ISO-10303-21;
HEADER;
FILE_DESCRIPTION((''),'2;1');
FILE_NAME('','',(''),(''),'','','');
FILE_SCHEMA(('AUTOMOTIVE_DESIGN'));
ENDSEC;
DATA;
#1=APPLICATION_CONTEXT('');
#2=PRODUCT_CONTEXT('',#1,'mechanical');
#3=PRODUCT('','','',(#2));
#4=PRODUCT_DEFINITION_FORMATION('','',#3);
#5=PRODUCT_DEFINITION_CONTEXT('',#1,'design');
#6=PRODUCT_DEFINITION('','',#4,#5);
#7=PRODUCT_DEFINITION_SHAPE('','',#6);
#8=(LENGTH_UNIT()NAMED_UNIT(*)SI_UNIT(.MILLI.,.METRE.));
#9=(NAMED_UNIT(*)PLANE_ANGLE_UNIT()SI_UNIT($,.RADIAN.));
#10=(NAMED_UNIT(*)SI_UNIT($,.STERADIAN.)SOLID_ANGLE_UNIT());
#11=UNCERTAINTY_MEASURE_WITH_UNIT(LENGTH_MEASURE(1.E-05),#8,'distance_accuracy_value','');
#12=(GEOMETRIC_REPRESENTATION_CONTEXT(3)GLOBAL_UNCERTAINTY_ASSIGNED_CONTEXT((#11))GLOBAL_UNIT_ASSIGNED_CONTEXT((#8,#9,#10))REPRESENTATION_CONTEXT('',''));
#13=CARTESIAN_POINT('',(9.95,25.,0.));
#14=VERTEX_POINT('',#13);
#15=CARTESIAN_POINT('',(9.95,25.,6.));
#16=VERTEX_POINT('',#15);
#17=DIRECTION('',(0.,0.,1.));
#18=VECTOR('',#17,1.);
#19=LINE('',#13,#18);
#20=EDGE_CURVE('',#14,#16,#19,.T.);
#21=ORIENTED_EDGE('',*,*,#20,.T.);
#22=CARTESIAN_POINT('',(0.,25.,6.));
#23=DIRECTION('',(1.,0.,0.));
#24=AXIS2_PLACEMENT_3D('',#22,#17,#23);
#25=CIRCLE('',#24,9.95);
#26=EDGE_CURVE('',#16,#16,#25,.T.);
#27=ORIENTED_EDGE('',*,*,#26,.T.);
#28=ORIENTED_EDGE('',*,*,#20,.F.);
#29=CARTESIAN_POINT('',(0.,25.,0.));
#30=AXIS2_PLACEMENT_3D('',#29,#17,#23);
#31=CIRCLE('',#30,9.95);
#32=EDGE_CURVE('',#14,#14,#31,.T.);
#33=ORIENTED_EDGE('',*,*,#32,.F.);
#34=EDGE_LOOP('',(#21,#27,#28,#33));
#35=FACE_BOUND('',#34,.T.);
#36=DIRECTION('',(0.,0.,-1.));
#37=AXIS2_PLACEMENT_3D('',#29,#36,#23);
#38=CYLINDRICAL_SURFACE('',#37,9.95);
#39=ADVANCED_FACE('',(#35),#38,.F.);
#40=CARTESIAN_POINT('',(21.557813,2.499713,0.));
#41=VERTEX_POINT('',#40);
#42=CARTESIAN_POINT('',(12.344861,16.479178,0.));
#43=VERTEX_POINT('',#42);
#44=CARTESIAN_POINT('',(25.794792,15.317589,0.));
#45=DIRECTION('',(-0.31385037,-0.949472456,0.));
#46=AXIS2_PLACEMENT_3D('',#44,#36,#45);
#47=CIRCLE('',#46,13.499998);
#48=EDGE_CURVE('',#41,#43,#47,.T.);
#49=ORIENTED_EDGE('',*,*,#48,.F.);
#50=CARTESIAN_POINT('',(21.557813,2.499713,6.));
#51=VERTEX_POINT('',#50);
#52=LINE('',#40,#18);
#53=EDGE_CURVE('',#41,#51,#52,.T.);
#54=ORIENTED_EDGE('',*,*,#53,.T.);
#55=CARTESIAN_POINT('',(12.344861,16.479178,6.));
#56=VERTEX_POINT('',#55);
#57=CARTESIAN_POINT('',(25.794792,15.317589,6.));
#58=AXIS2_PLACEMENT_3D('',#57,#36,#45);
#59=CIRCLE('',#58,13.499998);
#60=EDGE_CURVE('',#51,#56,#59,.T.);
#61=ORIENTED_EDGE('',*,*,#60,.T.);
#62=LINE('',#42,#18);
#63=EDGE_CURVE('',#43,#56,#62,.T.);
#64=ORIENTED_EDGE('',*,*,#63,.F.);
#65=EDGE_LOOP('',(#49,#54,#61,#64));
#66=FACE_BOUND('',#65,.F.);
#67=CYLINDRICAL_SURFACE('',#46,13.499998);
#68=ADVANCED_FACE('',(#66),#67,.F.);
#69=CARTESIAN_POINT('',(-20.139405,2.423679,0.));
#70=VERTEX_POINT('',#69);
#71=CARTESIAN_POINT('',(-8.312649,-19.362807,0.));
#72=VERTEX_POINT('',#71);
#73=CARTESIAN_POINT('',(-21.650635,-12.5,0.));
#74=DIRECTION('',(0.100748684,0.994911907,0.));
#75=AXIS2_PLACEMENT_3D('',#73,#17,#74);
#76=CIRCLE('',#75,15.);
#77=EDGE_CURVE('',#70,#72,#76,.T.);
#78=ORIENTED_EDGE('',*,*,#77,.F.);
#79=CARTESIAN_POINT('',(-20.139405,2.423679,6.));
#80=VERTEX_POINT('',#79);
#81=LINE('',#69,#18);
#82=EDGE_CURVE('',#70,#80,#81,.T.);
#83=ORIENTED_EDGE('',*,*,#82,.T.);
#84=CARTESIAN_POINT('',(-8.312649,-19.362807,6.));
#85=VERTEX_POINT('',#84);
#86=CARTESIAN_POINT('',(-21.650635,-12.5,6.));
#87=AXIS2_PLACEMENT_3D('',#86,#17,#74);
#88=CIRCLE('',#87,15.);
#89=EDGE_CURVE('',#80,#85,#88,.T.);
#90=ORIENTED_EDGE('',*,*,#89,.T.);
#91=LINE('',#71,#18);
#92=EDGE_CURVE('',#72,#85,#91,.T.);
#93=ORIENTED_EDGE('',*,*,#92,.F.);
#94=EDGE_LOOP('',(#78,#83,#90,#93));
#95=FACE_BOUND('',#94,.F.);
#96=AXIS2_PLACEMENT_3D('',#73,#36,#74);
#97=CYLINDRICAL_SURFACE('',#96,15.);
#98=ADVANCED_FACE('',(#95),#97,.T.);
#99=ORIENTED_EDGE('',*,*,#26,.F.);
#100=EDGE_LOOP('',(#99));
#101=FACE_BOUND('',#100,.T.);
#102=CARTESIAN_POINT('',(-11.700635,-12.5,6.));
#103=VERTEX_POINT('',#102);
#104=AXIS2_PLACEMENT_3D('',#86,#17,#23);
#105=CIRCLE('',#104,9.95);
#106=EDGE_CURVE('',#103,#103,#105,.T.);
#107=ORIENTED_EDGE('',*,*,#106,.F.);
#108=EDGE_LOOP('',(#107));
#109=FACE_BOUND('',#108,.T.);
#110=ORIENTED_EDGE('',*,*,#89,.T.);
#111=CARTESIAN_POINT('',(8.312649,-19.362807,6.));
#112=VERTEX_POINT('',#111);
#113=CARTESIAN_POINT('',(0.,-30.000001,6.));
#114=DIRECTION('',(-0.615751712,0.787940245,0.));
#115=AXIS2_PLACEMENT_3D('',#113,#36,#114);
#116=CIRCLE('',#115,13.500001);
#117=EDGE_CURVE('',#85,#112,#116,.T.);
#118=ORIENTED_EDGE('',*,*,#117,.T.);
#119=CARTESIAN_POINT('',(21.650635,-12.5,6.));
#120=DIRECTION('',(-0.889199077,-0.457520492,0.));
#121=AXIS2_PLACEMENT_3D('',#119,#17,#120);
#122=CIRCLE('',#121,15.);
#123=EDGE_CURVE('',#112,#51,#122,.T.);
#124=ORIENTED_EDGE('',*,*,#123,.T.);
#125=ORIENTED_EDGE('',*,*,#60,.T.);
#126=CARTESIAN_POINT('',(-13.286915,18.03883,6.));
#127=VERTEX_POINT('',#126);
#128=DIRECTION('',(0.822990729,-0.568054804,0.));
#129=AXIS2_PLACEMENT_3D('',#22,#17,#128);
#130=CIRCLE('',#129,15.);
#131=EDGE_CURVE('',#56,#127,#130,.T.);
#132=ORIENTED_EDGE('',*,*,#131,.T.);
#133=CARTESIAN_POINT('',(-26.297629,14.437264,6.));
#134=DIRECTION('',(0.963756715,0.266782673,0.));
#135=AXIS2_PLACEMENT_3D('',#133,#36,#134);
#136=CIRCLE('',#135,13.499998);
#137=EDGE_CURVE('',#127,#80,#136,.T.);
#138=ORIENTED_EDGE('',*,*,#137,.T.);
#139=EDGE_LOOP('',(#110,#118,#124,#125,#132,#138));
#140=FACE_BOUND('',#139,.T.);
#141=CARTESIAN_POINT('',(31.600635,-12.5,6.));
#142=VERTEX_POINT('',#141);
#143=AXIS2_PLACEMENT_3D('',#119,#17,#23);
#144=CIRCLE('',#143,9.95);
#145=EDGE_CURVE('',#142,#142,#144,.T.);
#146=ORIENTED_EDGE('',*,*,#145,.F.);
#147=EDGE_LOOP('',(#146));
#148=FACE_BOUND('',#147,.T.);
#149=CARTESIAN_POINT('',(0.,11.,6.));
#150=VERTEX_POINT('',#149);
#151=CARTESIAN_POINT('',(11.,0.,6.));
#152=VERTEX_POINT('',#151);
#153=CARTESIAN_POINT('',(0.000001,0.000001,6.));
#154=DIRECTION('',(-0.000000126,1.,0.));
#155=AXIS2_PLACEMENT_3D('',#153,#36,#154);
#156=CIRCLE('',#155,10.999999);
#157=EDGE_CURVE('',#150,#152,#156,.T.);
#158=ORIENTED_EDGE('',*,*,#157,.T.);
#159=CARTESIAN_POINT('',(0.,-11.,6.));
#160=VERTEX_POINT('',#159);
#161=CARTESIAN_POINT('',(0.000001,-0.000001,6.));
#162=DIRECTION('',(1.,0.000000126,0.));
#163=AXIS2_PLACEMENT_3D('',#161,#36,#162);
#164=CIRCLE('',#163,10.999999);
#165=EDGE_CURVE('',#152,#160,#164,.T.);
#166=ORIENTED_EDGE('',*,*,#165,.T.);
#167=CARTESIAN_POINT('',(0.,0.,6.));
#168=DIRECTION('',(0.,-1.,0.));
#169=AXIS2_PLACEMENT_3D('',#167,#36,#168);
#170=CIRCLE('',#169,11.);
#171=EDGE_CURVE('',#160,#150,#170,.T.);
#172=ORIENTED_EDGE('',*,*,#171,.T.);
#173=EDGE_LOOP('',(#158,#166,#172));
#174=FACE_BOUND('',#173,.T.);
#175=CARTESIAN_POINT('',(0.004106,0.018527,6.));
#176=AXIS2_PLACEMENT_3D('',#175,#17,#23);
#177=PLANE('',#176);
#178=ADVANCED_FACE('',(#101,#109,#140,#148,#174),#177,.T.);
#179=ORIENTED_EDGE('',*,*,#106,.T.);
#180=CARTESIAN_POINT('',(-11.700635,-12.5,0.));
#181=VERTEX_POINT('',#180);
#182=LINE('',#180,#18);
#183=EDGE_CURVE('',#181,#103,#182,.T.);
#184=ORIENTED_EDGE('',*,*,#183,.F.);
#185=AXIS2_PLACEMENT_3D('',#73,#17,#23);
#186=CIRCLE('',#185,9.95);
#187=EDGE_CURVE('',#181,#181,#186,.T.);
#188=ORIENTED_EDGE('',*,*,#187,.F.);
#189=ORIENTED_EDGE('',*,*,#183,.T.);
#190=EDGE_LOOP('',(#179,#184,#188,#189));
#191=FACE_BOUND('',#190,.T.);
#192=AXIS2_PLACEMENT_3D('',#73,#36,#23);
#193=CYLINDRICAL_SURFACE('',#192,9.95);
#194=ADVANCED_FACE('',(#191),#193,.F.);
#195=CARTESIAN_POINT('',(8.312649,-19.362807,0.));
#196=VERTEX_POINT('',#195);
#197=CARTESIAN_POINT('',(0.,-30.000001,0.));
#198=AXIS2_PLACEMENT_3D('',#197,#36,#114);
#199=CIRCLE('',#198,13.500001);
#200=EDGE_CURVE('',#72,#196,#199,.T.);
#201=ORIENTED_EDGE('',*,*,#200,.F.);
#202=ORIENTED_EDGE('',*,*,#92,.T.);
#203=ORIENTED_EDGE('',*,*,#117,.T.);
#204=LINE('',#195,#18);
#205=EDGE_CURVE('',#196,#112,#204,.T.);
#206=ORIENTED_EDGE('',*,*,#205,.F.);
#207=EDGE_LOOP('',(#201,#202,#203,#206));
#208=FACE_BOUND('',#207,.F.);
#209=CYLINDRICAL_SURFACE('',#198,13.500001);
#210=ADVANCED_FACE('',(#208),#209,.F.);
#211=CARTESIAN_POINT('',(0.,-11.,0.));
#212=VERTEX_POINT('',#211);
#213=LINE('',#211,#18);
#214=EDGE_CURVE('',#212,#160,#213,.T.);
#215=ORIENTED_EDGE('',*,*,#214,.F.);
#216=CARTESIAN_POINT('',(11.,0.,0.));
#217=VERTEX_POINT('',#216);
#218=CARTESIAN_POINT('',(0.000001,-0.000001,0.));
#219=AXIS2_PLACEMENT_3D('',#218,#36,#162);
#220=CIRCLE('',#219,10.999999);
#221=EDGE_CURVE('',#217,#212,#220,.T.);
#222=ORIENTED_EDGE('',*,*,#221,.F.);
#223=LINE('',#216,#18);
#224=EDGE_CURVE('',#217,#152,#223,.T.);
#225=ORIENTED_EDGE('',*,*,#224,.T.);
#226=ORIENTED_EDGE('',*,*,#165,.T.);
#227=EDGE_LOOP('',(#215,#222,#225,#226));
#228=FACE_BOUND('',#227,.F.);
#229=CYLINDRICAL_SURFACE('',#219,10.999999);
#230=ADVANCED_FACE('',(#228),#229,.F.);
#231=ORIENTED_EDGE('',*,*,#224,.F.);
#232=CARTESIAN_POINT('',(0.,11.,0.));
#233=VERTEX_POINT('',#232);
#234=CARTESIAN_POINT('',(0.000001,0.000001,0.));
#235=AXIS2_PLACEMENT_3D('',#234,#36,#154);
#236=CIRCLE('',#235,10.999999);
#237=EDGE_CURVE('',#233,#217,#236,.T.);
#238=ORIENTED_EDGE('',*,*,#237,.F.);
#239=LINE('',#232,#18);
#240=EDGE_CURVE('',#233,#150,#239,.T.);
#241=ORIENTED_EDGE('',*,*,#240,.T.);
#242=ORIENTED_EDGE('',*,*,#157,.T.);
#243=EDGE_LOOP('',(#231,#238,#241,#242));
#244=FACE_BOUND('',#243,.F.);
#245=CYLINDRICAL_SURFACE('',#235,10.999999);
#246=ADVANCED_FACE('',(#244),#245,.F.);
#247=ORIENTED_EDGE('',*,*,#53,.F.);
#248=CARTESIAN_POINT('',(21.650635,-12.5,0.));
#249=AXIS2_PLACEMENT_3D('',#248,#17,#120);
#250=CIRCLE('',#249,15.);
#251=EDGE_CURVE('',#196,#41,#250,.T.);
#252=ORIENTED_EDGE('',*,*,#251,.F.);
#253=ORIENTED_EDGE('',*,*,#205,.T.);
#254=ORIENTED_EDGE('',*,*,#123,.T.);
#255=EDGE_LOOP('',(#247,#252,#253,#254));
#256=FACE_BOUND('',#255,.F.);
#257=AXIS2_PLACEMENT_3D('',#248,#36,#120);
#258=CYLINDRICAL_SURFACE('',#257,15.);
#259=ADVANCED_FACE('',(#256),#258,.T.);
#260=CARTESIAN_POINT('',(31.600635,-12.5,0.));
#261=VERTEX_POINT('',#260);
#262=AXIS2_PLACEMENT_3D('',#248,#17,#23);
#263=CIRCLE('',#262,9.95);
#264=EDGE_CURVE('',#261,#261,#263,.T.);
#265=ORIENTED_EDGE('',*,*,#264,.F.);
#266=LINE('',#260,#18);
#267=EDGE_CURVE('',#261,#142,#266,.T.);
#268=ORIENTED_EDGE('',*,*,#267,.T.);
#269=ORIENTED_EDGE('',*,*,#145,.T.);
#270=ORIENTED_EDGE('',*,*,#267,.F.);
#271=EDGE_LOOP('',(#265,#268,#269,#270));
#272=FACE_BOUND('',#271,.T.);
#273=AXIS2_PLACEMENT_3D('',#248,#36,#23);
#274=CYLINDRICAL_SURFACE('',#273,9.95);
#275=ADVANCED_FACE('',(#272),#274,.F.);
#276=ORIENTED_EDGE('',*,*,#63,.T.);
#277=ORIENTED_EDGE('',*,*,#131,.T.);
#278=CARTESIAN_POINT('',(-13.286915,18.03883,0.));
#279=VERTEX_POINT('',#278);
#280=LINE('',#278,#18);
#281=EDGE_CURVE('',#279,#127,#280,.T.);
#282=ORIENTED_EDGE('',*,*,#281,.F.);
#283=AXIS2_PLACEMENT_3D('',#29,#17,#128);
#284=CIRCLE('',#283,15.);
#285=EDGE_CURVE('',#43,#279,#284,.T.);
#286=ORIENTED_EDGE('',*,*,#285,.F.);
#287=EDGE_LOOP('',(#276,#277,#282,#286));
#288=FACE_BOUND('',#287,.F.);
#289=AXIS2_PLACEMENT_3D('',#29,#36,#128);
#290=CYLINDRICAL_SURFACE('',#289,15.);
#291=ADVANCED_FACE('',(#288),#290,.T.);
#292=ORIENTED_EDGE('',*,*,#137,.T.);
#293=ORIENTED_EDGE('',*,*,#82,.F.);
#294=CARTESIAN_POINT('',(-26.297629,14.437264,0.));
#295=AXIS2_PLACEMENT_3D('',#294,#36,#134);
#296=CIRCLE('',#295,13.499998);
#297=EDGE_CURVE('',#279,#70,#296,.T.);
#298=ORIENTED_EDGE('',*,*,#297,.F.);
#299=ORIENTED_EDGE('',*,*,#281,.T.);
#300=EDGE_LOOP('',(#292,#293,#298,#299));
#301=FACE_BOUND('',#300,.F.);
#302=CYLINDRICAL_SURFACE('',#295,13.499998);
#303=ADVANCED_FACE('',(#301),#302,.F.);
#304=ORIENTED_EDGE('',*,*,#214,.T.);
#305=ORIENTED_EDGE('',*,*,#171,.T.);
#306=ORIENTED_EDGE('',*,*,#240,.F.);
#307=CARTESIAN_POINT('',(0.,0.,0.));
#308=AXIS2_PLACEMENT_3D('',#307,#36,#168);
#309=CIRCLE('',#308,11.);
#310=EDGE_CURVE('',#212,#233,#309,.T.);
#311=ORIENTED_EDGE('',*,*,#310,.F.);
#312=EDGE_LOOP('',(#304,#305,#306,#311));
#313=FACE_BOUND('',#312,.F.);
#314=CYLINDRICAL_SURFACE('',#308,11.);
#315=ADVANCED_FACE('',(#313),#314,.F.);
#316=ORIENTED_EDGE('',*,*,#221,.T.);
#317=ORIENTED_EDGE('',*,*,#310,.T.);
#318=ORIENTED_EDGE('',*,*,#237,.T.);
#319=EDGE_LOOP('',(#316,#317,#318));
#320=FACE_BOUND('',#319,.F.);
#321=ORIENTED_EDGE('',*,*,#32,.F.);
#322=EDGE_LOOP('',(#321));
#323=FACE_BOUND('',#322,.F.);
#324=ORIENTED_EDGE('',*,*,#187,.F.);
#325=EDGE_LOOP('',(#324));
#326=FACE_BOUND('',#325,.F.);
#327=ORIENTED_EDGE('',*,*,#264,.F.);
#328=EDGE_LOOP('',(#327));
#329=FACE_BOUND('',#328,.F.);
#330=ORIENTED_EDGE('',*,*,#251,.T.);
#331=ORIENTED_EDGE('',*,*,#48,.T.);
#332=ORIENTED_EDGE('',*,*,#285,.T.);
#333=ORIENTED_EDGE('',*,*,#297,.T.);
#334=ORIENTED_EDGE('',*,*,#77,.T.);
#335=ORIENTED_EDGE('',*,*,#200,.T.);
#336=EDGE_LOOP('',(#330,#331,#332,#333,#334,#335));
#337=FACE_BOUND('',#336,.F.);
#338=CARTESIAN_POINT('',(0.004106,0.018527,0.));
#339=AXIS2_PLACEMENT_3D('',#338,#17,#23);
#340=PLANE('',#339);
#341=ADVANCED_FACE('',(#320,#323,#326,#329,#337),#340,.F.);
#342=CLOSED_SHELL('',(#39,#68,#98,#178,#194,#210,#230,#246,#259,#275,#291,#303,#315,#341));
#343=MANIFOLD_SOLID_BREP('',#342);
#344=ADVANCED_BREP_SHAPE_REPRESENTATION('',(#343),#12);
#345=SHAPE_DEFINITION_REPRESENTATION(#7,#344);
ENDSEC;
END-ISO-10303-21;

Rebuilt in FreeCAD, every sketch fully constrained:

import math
import FreeCAD as App
import Part
import Sketcher

V = App.Vector
Q = App.Units.Quantity

doc = App.newDocument("Part")
body = doc.addObject("PartDesign::Body", "Body")

# Sketch on XY plane
sketch1 = body.newObject("Sketcher::SketchObject", "Sketch")
sketch1.AttachmentSupport = (doc.getObject("XY_Plane"), [""])
sketch1.MapMode = "FlatFace"
sketch1.addGeometry([
    Part.ArcOfCircle(Part.Circle(V(26, 15, 0), V(0, 0, 1), 13), math.radians(175), math.radians(252)),  # 0
    Part.ArcOfCircle(Part.Circle(V(0, 25, 0), V(0, 0, 1), 15), math.radians(-35), math.radians(208)),  # 1
    Part.ArcOfCircle(Part.Circle(V(-26, 14, 0), V(0, 0, 1), 13), math.radians(-63), math.radians(15)),  # 2
    Part.ArcOfCircle(Part.Circle(V(-22, -12, 0), V(0, 0, 1), 15), math.radians(84), math.radians(333)),  # 3
    Part.ArcOfCircle(Part.Circle(V(0, -30, 0), V(0, 0, 1), 14), math.radians(52), math.radians(128)),  # 4
    Part.ArcOfCircle(Part.Circle(V(22, -12, 0), V(0, 0, 1), 15), math.radians(-153), math.radians(90)),  # 5
    Part.Circle(V(-22, -12, 0), V(0, 0, 1), 10),  # 6
    Part.Circle(V(22, -12, 0), V(0, 0, 1), 10),  # 7
    Part.ArcOfCircle(Part.Circle(V(0, 0, 0), V(0, 0, 1), 11), math.radians(90), math.radians(270)),  # 8
    Part.ArcOfCircle(Part.Circle(V(0, 0, 0), V(0, 0, 1), 11), math.radians(0), math.radians(90)),  # 9
    Part.ArcOfCircle(Part.Circle(V(0, 0, 0), V(0, 0, 1), 11), math.radians(-90), math.radians(0)),  # 10
    Part.Circle(V(0, 25, 0), V(0, 0, 1), 10),  # 11
], False)
sketch1.addConstraint([
    Sketcher.Constraint("Coincident", 0, 1, 1, 1),
    Sketcher.Constraint("Coincident", 1, 2, 2, 2),
    Sketcher.Constraint("Coincident", 2, 1, 3, 1),
    Sketcher.Constraint("Coincident", 3, 2, 4, 2),
    Sketcher.Constraint("Coincident", 4, 1, 5, 1),
    Sketcher.Constraint("Coincident", 5, 2, 0, 2),
    Sketcher.Constraint("Tangent", 8, 1, 9, 2),
    Sketcher.Constraint("Tangent", 9, 1, 10, 2),
    Sketcher.Constraint("Tangent", 10, 1, 8, 2),
    Sketcher.Constraint("Coincident", 8, 3, -1, 1),
    Sketcher.Constraint("Coincident", 6, 3, 3, 3),
    Sketcher.Constraint("Coincident", 7, 3, 5, 3),
    Sketcher.Constraint("Coincident", 11, 3, 1, 3),
    Sketcher.Constraint("Equal", 0, 2),
    Sketcher.Constraint("Equal", 1, 3),
    Sketcher.Constraint("Equal", 3, 5),
    Sketcher.Constraint("Equal", 6, 7),
    Sketcher.Constraint("Equal", 7, 11),
    Sketcher.Constraint("Symmetric", 3, 3, 5, 3, -2),
    Sketcher.Constraint("PointOnObject", 1, 3, -2),
    Sketcher.Constraint("PointOnObject", 4, 3, -2),
    Sketcher.Constraint("PointOnObject", 8, 1, -2),
    Sketcher.Constraint("PointOnObject", 9, 1, -1),
    Sketcher.Constraint("PointOnObject", 10, 1, -2),
    Sketcher.Constraint("Radius", 1, Q("15 mm")),
    Sketcher.Constraint("Radius", 8, Q("11 mm")),
    Sketcher.Constraint("Diameter", 6, Q("19.9 mm")),
    Sketcher.Constraint("Radius", 2, Q("13.499998 mm")),
    Sketcher.Constraint("Radius", 4, Q("13.500001 mm")),
    Sketcher.Constraint("DistanceY", -1, 1, 1, 3, Q("25 mm")),
    Sketcher.Constraint("DistanceY", 4, 3, -1, 1, Q("30.000001 mm")),
    Sketcher.Constraint("DistanceY", 3, 3, -1, 1, Q("12.5 mm")),
    Sketcher.Constraint("DistanceY", -1, 1, 0, 3, Q("15.317589 mm")),
    Sketcher.Constraint("DistanceX", 2, 3, -1, 1, Q("26.297629 mm")),
    Sketcher.Constraint("DistanceX", -1, 1, 0, 1, Q("12.344861 mm")),
    Sketcher.Constraint("DistanceY", -1, 1, 1, 2, Q("18.03883 mm")),
    Sketcher.Constraint("DistanceY", -1, 1, 2, 1, Q("2.423679 mm")),
])
pad1 = body.newObject("PartDesign::Pad", "Pad")
pad1.Profile = sketch1
pad1.Length = 6

doc.recompute()
